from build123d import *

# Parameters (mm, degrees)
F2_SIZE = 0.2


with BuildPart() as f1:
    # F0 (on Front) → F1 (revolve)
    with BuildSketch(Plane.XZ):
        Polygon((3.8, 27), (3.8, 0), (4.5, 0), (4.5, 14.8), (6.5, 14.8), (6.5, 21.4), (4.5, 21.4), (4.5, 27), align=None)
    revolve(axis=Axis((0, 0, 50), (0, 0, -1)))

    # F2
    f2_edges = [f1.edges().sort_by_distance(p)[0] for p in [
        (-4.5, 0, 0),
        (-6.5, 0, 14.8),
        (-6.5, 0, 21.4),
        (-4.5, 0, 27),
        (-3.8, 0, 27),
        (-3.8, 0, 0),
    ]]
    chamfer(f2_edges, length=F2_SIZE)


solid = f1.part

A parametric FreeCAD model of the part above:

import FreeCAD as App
import Part
import Sketcher
from FreeCAD import Vector


def edges_at(feature, points):
    """Names of the edges that pass closest to the given points."""
    edges = feature.Shape.Edges
    near = lambda p: min(range(len(edges)), key=lambda i: edges[i].distToShape(Part.Vertex(*p))[0])
    return sorted({f"Edge{near(p) + 1}" for p in points})


def add_polygon(sketch, points):
    """Adds a closed chain of lines whose ends are joined by coincident constraints."""
    first, n = sketch.GeometryCount, len(points)
    for a, b in zip(points, points[1:] + points[:1]):
        sketch.addGeometry(Part.LineSegment(App.Vector(*a, 0), App.Vector(*b, 0)), False)
    for i in range(n):
        sketch.addConstraint(Sketcher.Constraint("Coincident", first + i, 2, first + (i + 1) % n, 1))

doc = App.newDocument("Part")
body = doc.addObject("PartDesign::Body", "Body")

# Sketch on XZ plane
sketch1 = body.newObject("Sketcher::SketchObject", "Sketch")
sketch1.AttachmentSupport = (doc.getObject("XZ_Plane"), [""])
sketch1.MapMode = "FlatFace"
add_polygon(sketch1, [(3.8, 27), (3.8, 0), (4.5, 0), (4.5, 14.8), (6.5, 14.8), (6.5, 21.4), (4.5, 21.4), (4.5, 27)])  # lines 0-7
sketch1.addConstraint(Sketcher.Constraint("Vertical", 0))
sketch1.addConstraint(Sketcher.Constraint("Horizontal", 1))
sketch1.addConstraint(Sketcher.Constraint("Vertical", 2))
sketch1.addConstraint(Sketcher.Constraint("Horizontal", 3))
sketch1.addConstraint(Sketcher.Constraint("Vertical", 4))
sketch1.addConstraint(Sketcher.Constraint("Horizontal", 5))
sketch1.addConstraint(Sketcher.Constraint("Vertical", 6))
sketch1.addConstraint(Sketcher.Constraint("Horizontal", 7))
sketch1.addConstraint(Sketcher.Constraint("PointOnObject", 0, 2, -1))
sketch1.addConstraint(Sketcher.Constraint("Vertical", 2, 2, 5, 2))
sketch1.addConstraint(Sketcher.Constraint("DistanceX", 3, 1, 3, 2, 2.0))
sketch1.addConstraint(Sketcher.Constraint("DistanceY", 0, 2, 0, 1, 27.0))
sketch1.addConstraint(Sketcher.Constraint("DistanceX", 1, 1, 1, 2, 0.7))
sketch1.addConstraint(Sketcher.Constraint("DistanceY", 2, 1, 2, 2, 14.8))
sketch1.addConstraint(Sketcher.Constraint("DistanceY", 4, 1, 4, 2, 6.6))
sketch1.addConstraint(Sketcher.Constraint("DistanceX", -1, 1, 0, 2, 3.8))
revolution = body.newObject("PartDesign::Revolution", "Revolution")
revolution.Profile = sketch1
revolution.ReferenceAxis = (sketch1, ["V_Axis"])
revolution.Angle = 360
doc.recompute()

chamfer = body.newObject("PartDesign::Chamfer", "Chamfer")
chamfer.Base = (revolution, edges_at(revolution, [
    (-4.5, 0, 0),
    (-6.5, 0, 14.8),
    (-6.5, 0, 21.4),
    (-4.5, 0, 27),
    (-3.8, 0, 27),
    (-3.8, 0, 0),
]))
chamfer.Size = 0.2

doc.recompute()
